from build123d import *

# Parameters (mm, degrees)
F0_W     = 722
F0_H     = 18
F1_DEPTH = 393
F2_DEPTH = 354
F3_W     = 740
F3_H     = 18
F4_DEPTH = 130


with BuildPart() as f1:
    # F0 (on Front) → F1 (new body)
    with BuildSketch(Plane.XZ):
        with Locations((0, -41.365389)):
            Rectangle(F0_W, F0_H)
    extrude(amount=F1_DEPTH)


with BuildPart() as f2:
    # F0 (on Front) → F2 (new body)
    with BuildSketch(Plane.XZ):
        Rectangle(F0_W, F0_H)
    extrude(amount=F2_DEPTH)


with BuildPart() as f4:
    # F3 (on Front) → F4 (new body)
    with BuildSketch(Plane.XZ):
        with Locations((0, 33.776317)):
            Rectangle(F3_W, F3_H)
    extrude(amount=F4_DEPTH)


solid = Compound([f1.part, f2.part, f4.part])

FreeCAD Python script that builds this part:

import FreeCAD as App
import Part
import Sketcher
from FreeCAD import Vector

doc = App.newDocument("Part")
body = doc.addObject("PartDesign::Body", "Body")

# Sketch on XZ plane
sketch1 = body.newObject("Sketcher::SketchObject", "Sketch")
sketch1.AttachmentSupport = (doc.getObject("XZ_Plane"), [""])
sketch1.MapMode = "FlatFace"
sketch1.addGeometry([
    Part.LineSegment(Vector(-361, -32.365389, 0), Vector(-361, -50.365389, 0)),
    Part.LineSegment(Vector(-361, -50.365389, 0), Vector(361, -50.365389, 0)),
    Part.LineSegment(Vector(361, -50.365389, 0), Vector(361, -32.365389, 0)),
    Part.LineSegment(Vector(361, -32.365389, 0), Vector(-361, -32.365389, 0)),
], False)
sketch1.addConstraint([
    Sketcher.Constraint("Coincident", 0, 2, 1, 1),
    Sketcher.Constraint("Coincident", 1, 2, 2, 1),
    Sketcher.Constraint("Coincident", 2, 2, 3, 1),
    Sketcher.Constraint("Coincident", 3, 2, 0, 1),
    Sketcher.Constraint("Vertical", 0),
    Sketcher.Constraint("Horizontal", 1),
    Sketcher.Constraint("Vertical", 2),
    Sketcher.Constraint("Horizontal", 3),
    Sketcher.Constraint("DistanceX", 1, 1, 1, 2, 722.0),
    Sketcher.Constraint("DistanceY", 0, 2, 0, 1, 18.0),
    Sketcher.Constraint("DistanceX", 0, 2, -1, 1, 361.0),
    Sketcher.Constraint("DistanceY", 0, 2, -1, 1, 50.365389),
])
pad1 = body.newObject("PartDesign::Pad", "Pad")
pad1.Profile = sketch1
pad1.Length = 393
body2 = doc.addObject("PartDesign::Body", "Body001")

# Sketch on XZ plane
sketch2 = body2.newObject("Sketcher::SketchObject", "Sketch001")
sketch2.AttachmentSupport = (doc.getObject("XZ_Plane001"), [""])
sketch2.MapMode = "FlatFace"
sketch2.addGeometry([
    Part.LineSegment(Vector(-361, 9, 0), Vector(-361, -9, 0)),
    Part.LineSegment(Vector(-361, -9, 0), Vector(361, -9, 0)),
    Part.LineSegment(Vector(361, -9, 0), Vector(361, 9, 0)),
    Part.LineSegment(Vector(361, 9, 0), Vector(-361, 9, 0)),
], False)
sketch2.addConstraint([
    Sketcher.Constraint("Coincident", 0, 2, 1, 1),
    Sketcher.Constraint("Coincident", 1, 2, 2, 1),
    Sketcher.Constraint("Coincident", 2, 2, 3, 1),
    Sketcher.Constraint("Coincident", 3, 2, 0, 1),
    Sketcher.Constraint("Vertical", 0),
    Sketcher.Constraint("Horizontal", 1),
    Sketcher.Constraint("Vertical", 2),
    Sketcher.Constraint("Horizontal", 3),
    Sketcher.Constraint("Symmetric", 0, 2, 2, 2, -1, 1),
    Sketcher.Constraint("DistanceX", 1, 1, 1, 2, 722.0),
    Sketcher.Constraint("DistanceY", 0, 2, 0, 1, 18.0),
])
pad2 = body2.newObject("PartDesign::Pad", "Pad001")
pad2.Profile = sketch2
pad2.Length = 354
body3 = doc.addObject("PartDesign::Body", "Body002")

# Sketch on XZ plane
sketch3 = body3.newObject("Sketcher::SketchObject", "Sketch002")
sketch3.AttachmentSupport = (doc.getObject("XZ_Plane002"), [""])
sketch3.MapMode = "FlatFace"
sketch3.addGeometry([
    Part.LineSegment(Vector(-370, 42.776317, 0), Vector(-370, 24.776317, 0)),
    Part.LineSegment(Vector(-370, 24.776317, 0), Vector(370, 24.776317, 0)),
    Part.LineSegment(Vector(370, 24.776317, 0), Vector(370, 42.776317, 0)),
    Part.LineSegment(Vector(370, 42.776317, 0), Vector(-370, 42.776317, 0)),
], False)
sketch3.addConstraint([
    Sketcher.Constraint("Coincident", 0, 2, 1, 1),
    Sketcher.Constraint("Coincident", 1, 2, 2, 1),
    Sketcher.Constraint("Coincident", 2, 2, 3, 1),
    Sketcher.Constraint("Coincident", 3, 2, 0, 1),
    Sketcher.Constraint("Vertical", 0),
    Sketcher.Constraint("Horizontal", 1),
    Sketcher.Constraint("Vertical", 2),
    Sketcher.Constraint("Horizontal", 3),
    Sketcher.Constraint("DistanceX", 1, 1, 1, 2, 740.0),
    Sketcher.Constraint("DistanceY", 0, 2, 0, 1, 18.0),
    Sketcher.Constraint("DistanceX", 0, 2, -1, 1, 370.0),
    Sketcher.Constraint("DistanceY", -1, 1, 0, 2, 24.776317),
])
pad3 = body3.newObject("PartDesign::Pad", "Pad002")
pad3.Profile = sketch3
pad3.Length = 130

doc.recompute()
